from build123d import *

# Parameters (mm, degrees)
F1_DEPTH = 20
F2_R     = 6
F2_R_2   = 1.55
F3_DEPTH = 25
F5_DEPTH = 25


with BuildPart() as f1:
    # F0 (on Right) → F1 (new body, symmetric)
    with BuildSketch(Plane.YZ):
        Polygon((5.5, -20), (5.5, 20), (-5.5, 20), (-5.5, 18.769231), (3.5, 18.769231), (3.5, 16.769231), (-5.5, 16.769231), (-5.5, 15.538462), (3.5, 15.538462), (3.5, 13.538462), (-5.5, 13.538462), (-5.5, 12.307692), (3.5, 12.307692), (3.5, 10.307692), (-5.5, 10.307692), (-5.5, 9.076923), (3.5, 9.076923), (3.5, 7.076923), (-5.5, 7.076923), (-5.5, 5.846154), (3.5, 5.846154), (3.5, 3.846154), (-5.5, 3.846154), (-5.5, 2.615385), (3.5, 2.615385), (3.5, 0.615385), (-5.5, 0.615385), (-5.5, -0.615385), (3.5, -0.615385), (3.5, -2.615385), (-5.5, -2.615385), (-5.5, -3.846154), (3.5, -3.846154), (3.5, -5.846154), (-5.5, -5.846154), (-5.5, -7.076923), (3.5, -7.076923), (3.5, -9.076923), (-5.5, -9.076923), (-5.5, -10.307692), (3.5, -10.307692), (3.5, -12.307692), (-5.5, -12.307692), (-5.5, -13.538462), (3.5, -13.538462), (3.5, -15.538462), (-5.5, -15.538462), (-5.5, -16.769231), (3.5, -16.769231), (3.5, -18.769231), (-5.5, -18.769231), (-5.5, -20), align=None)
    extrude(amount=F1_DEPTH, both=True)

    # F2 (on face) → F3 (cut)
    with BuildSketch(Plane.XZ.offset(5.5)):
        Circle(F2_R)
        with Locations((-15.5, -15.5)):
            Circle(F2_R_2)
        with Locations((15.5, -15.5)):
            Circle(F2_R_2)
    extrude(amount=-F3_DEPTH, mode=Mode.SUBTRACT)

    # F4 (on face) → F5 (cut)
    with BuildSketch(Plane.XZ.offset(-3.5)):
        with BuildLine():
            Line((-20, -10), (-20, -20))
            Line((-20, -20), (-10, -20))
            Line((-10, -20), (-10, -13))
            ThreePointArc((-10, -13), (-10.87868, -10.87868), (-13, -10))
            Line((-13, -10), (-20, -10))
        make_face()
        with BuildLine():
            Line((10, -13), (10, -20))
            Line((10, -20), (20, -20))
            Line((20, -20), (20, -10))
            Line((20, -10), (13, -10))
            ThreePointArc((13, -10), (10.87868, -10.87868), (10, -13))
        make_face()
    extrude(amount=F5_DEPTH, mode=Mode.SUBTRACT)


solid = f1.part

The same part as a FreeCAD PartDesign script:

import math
import FreeCAD as App
import Part
import Sketcher
Q = App.Units.Quantity

doc = App.newDocument("Part")
body = doc.addObject("PartDesign::Body", "Body")

# Sketch on YZ plane
sketch1 = body.newObject("Sketcher::SketchObject", "Sketch")
sketch1.AttachmentSupport = (doc.getObject("YZ_Plane"), [""])
sketch1.MapMode = "FlatFace"
sketch1.addGeometry([
    Part.LineSegment(App.Vector(5.5, -20, 0), App.Vector(5.5, 20, 0)),  # 0
    Part.LineSegment(App.Vector(5.5, 20, 0), App.Vector(-5.5, 20, 0)),  # 1
    Part.LineSegment(App.Vector(-5.5, 20, 0), App.Vector(-5.5, 18.8, 0)),  # 2
    Part.LineSegment(App.Vector(-5.5, 18.8, 0), App.Vector(3.5, 18.8, 0)),  # 3
    Part.LineSegment(App.Vector(3.5, 18.8, 0), App.Vector(3.5, 16.8, 0)),  # 4
    Part.LineSegment(App.Vector(3.5, 16.8, 0), App.Vector(-5.5, 16.8, 0)),  # 5
    Part.LineSegment(App.Vector(-5.5, 16.8, 0), App.Vector(-5.5, 15.5, 0)),  # 6
    Part.LineSegment(App.Vector(-5.5, 15.5, 0), App.Vector(3.5, 15.5, 0)),  # 7
    Part.LineSegment(App.Vector(3.5, 15.5, 0), App.Vector(3.5, 13.5, 0)),  # 8
    Part.LineSegment(App.Vector(3.5, 13.5, 0), App.Vector(-5.5, 13.5, 0)),  # 9
    Part.LineSegment(App.Vector(-5.5, 13.5, 0), App.Vector(-5.5, 12.3, 0)),  # 10
    Part.LineSegment(App.Vector(-5.5, 12.3, 0), App.Vector(3.5, 12.3, 0)),  # 11
    Part.LineSegment(App.Vector(3.5, 12.3, 0), App.Vector(3.5, 10.3, 0)),  # 12
    Part.LineSegment(App.Vector(3.5, 10.3, 0), App.Vector(-5.5, 10.3, 0)),  # 13
    Part.LineSegment(App.Vector(-5.5, 10.3, 0), App.Vector(-5.5, 9.1, 0)),  # 14
    Part.LineSegment(App.Vector(-5.5, 9.1, 0), App.Vector(3.5, 9.1, 0)),  # 15
    Part.LineSegment(App.Vector(3.5, 9.1, 0), App.Vector(3.5, 7.1, 0)),  # 16
    Part.LineSegment(App.Vector(3.5, 7.1, 0), App.Vector(-5.5, 7.1, 0)),  # 17
    Part.LineSegment(App.Vector(-5.5, 7.1, 0), App.Vector(-5.5, 5.8, 0)),  # 18
    Part.LineSegment(App.Vector(-5.5, 5.8, 0), App.Vector(3.5, 5.8, 0)),  # 19
    Part.LineSegment(App.Vector(3.5, 5.8, 0), App.Vector(3.5, 3.8, 0)),  # 20
    Part.LineSegment(App.Vector(3.5, 3.8, 0), App.Vector(-5.5, 3.8, 0)),  # 21
    Part.LineSegment(App.Vector(-5.5, 3.8, 0), App.Vector(-5.5, 2.6, 0)),  # 22
    Part.LineSegment(App.Vector(-5.5, 2.6, 0), App.Vector(3.5, 2.6, 0)),  # 23
    Part.LineSegment(App.Vector(3.5, 2.6, 0), App.Vector(3.5, 0.6, 0)),  # 24
    Part.LineSegment(App.Vector(3.5, 0.6, 0), App.Vector(-5.5, 0.6, 0)),  # 25
    Part.LineSegment(App.Vector(-5.5, 0.6, 0), App.Vector(-5.5, -0.6, 0)),  # 26
    Part.LineSegment(App.Vector(-5.5, -0.6, 0), App.Vector(3.5, -0.6, 0)),  # 27
    Part.LineSegment(App.Vector(3.5, -0.6, 0), App.Vector(3.5, -2.6, 0)),  # 28
    Part.LineSegment(App.Vector(3.5, -2.6, 0), App.Vector(-5.5, -2.6, 0)),  # 29
    Part.LineSegment(App.Vector(-5.5, -2.6, 0), App.Vector(-5.5, -3.8, 0)),  # 30
    Part.LineSegment(App.Vector(-5.5, -3.8, 0), App.Vector(3.5, -3.8, 0)),  # 31
    Part.LineSegment(App.Vector(3.5, -3.8, 0), App.Vector(3.5, -5.8, 0)),  # 32
    Part.LineSegment(App.Vector(3.5, -5.8, 0), App.Vector(-5.5, -5.8, 0)),  # 33
    Part.LineSegment(App.Vector(-5.5, -5.8, 0), App.Vector(-5.5, -7.1, 0)),  # 34
    Part.LineSegment(App.Vector(-5.5, -7.1, 0), App.Vector(3.5, -7.1, 0)),  # 35
    Part.LineSegment(App.Vector(3.5, -7.1, 0), App.Vector(3.5, -9.1, 0)),  # 36
    Part.LineSegment(App.Vector(3.5, -9.1, 0), App.Vector(-5.5, -9.1, 0)),  # 37
    Part.LineSegment(App.Vector(-5.5, -9.1, 0), App.Vector(-5.5, -10.3, 0)),  # 38
    Part.LineSegment(App.Vector(-5.5, -10.3, 0), App.Vector(3.5, -10.3, 0)),  # 39
    Part.LineSegment(App.Vector(3.5, -10.3, 0), App.Vector(3.5, -12.3, 0)),  # 40
    Part.LineSegment(App.Vector(3.5, -12.3, 0), App.Vector(-5.5, -12.3, 0)),  # 41
    Part.LineSegment(App.Vector(-5.5, -12.3, 0), App.Vector(-5.5, -13.5, 0)),  # 42
    Part.LineSegment(App.Vector(-5.5, -13.5, 0), App.Vector(3.5, -13.5, 0)),  # 43
    Part.LineSegment(App.Vector(3.5, -13.5, 0), App.Vector(3.5, -15.5, 0)),  # 44
    Part.LineSegment(App.Vector(3.5, -15.5, 0), App.Vector(-5.5, -15.5, 0)),  # 45
    Part.LineSegment(App.Vector(-5.5, -15.5, 0), App.Vector(-5.5, -16.8, 0)),  # 46
    Part.LineSegment(App.Vector(-5.5, -16.8, 0), App.Vector(3.5, -16.8, 0)),  # 47
    Part.LineSegment(App.Vector(3.5, -16.8, 0), App.Vector(3.5, -18.8, 0)),  # 48
    Part.LineSegment(App.Vector(3.5, -18.8, 0), App.Vector(-5.5, -18.8, 0)),  # 49
    Part.LineSegment(App.Vector(-5.5, -18.8, 0), App.Vector(-5.5, -20, 0)),  # 50
    Part.LineSegment(App.Vector(-5.5, -20, 0), App.Vector(5.5, -20, 0)),  # 51
], False)
sketch1.addConstraint([
    Sketcher.Constraint("Coincident", 0, 2, 1, 1),
    Sketcher.Constraint("Coincident", 1, 2, 2, 1),
    Sketcher.Constraint("Coincident", 2, 2, 3, 1),
    Sketcher.Constraint("Coincident", 3, 2, 4, 1),
    Sketcher.Constraint("Coincident", 4, 2, 5, 1),
    Sketcher.Constraint("Coincident", 5, 2, 6, 1),
    Sketcher.Constraint("Coincident", 6, 2, 7, 1),
    Sketcher.Constraint("Coincident", 7, 2, 8, 1),
    Sketcher.Constraint("Coincident", 8, 2, 9, 1),
    Sketcher.Constraint("Coincident", 9, 2, 10, 1),
    Sketcher.Constraint("Coincident", 10, 2, 11, 1),
    Sketcher.Constraint("Coincident", 11, 2, 12, 1),
    Sketcher.Constraint("Coincident", 12, 2, 13, 1),
    Sketcher.Constraint("Coincident", 13, 2, 14, 1),
    Sketcher.Constraint("Coincident", 14, 2, 15, 1),
    Sketcher.Constraint("Coincident", 15, 2, 16, 1),
    Sketcher.Constraint("Coincident", 16, 2, 17, 1),
    Sketcher.Constraint("Coincident", 17, 2, 18, 1),
    Sketcher.Constraint("Coincident", 18, 2, 19, 1),
    Sketcher.Constraint("Coincident", 19, 2, 20, 1),
    Sketcher.Constraint("Coincident", 20, 2, 21, 1),
    Sketcher.Constraint("Coincident", 21, 2, 22, 1),
    Sketcher.Constraint("Coincident", 22, 2, 23, 1),
    Sketcher.Constraint("Coincident", 23, 2, 24, 1),
    Sketcher.Constraint("Coincident", 24, 2, 25, 1),
    Sketcher.Constraint("Coincident", 25, 2, 26, 1),
    Sketcher.Constraint("Coincident", 26, 2, 27, 1),
    Sketcher.Constraint("Coincident", 27, 2, 28, 1),
    Sketcher.Constraint("Coincident", 28, 2, 29, 1),
    Sketcher.Constraint("Coincident", 29, 2, 30, 1),
    Sketcher.Constraint("Coincident", 30, 2, 31, 1),
    Sketcher.Constraint("Coincident", 31, 2, 32, 1),
    Sketcher.Constraint("Coincident", 32, 2, 33, 1),
    Sketcher.Constraint("Coincident", 33, 2, 34, 1),
    Sketcher.Constraint("Coincident", 34, 2, 35, 1),
    Sketcher.Constraint("Coincident", 35, 2, 36, 1),
    Sketcher.Constraint("Coincident", 36, 2, 37, 1),
    Sketcher.Constraint("Coincident", 37, 2, 38, 1),
    Sketcher.Constraint("Coincident", 38, 2, 39, 1),
    Sketcher.Constraint("Coincident", 39, 2, 40, 1),
    Sketcher.Constraint("Coincident", 40, 2, 41, 1),
    Sketcher.Constraint("Coincident", 41, 2, 42, 1),
    Sketcher.Constraint("Coincident", 42, 2, 43, 1),
    Sketcher.Constraint("Coincident", 43, 2, 44, 1),
    Sketcher.Constraint("Coincident", 44, 2, 45, 1),
    Sketcher.Constraint("Coincident", 45, 2, 46, 1),
    Sketcher.Constraint("Coincident", 46, 2, 47, 1),
    Sketcher.Constraint("Coincident", 47, 2, 48, 1),
    Sketcher.Constraint("Coincident", 48, 2, 49, 1),
    Sketcher.Constraint("Coincident", 49, 2, 50, 1),
    Sketcher.Constraint("Coincident", 50, 2, 51, 1),
    Sketcher.Constraint("Coincident", 51, 2, 0, 1),
    Sketcher.Constraint("Vertical", 0),
    Sketcher.Constraint("Horizontal", 1),
    Sketcher.Constraint("Vertical", 2),
    Sketcher.Constraint("Horizontal", 3),
    Sketcher.Constraint("Vertical", 4),
    Sketcher.Constraint("Horizontal", 5),
    Sketcher.Constraint("Vertical", 6),
    Sketcher.Constraint("Horizontal", 7),
    Sketcher.Constraint("Vertical", 8),
    Sketcher.Constraint("Horizontal", 9),
    Sketcher.Constraint("Vertical", 10),
    Sketcher.Constraint("Horizontal", 11),
    Sketcher.Constraint("Vertical", 12),
    Sketcher.Constraint("Horizontal", 13),
    Sketcher.Constraint("Vertical", 14),
    Sketcher.Constraint("Horizontal", 15),
    Sketcher.Constraint("Vertical", 16),
    Sketcher.Constraint("Horizontal", 17),
    Sketcher.Constraint("Vertical", 18),
    Sketcher.Constraint("Horizontal", 19),
    Sketcher.Constraint("Vertical", 20),
    Sketcher.Constraint("Horizontal", 21),
    Sketcher.Constraint("Vertical", 22),
    Sketcher.Constraint("Horizontal", 23),
    Sketcher.Constraint("Vertical", 24),
    Sketcher.Constraint("Horizontal", 25),
    Sketcher.Constraint("Vertical", 26),
    Sketcher.Constraint("Horizontal", 27),
    Sketcher.Constraint("Vertical", 28),
    Sketcher.Constraint("Horizontal", 29),
    Sketcher.Constraint("Vertical", 30),
    Sketcher.Constraint("Horizontal", 31),
    Sketcher.Constraint("Vertical", 32),
    Sketcher.Constraint("Horizontal", 33),
    Sketcher.Constraint("Vertical", 34),
    Sketcher.Constraint("Horizontal", 35),
    Sketcher.Constraint("Vertical", 36),
    Sketcher.Constraint("Horizontal", 37),
    Sketcher.Constraint("Vertical", 38),
    Sketcher.Constraint("Horizontal", 39),
    Sketcher.Constraint("Vertical", 40),
    Sketcher.Constraint("Horizontal", 41),
    Sketcher.Constraint("Vertical", 42),
    Sketcher.Constraint("Horizontal", 43),
    Sketcher.Constraint("Vertical", 44),
    Sketcher.Constraint("Horizontal", 45),
    Sketcher.Constraint("Vertical", 46),
    Sketcher.Constraint("Horizontal", 47),
    Sketcher.Constraint("Vertical", 48),
    Sketcher.Constraint("Horizontal", 49),
    Sketcher.Constraint("Vertical", 50),
    Sketcher.Constraint("Horizontal", 51),
    Sketcher.Constraint("Symmetric", 0, 2, 50, 2, -1, 1),
    Sketcher.Constraint("Symmetric", 24, 2, 27, 2, -1),
    Sketcher.Constraint("Symmetric", 22, 2, 29, 2, -1),
    Sketcher.Constraint("Symmetric", 20, 2, 31, 2, -1),
    Sketcher.Constraint("Symmetric", 18, 2, 33, 2, -1),
    Sketcher.Constraint("Symmetric", 16, 2, 35, 2, -1),
    Sketcher.Constraint("Symmetric", 14, 2, 37, 2, -1),
    Sketcher.Constraint("Symmetric", 12, 2, 39, 2, -1),
    Sketcher.Constraint("Symmetric", 10, 2, 41, 2, -1),
    Sketcher.Constraint("Symmetric", 8, 2, 43, 2, -1),
    Sketcher.Constraint("Symmetric", 6, 2, 45, 2, -1),
    Sketcher.Constraint("Symmetric", 4, 2, 47, 2, -1),
    Sketcher.Constraint("Symmetric", 2, 2, 49, 2, -1),
    Sketcher.Constraint("Vertical", 2, 2, 5, 2),
    Sketcher.Constraint("Vertical", 4, 2, 7, 2),
    Sketcher.Constraint("Vertical", 6, 2, 9, 2),
    Sketcher.Constraint("Vertical", 8, 2, 11, 2),
    Sketcher.Constraint("Vertical", 10, 2, 13, 2),
    Sketcher.Constraint("Vertical", 12, 2, 15, 2),
    Sketcher.Constraint("Vertical", 14, 2, 17, 2),
    Sketcher.Constraint("Vertical", 16, 2, 19, 2),
    Sketcher.Constraint("Vertical", 18, 2, 21, 2),
    Sketcher.Constraint("Vertical", 20, 2, 23, 2),
    Sketcher.Constraint("Vertical", 22, 2, 25, 2),
    Sketcher.Constraint("Equal", 2, 6),
    Sketcher.Constraint("Equal", 4, 8),
    Sketcher.Constraint("Equal", 6, 10),
    Sketcher.Constraint("Equal", 8, 12),
    Sketcher.Constraint("Equal", 10, 14),
    Sketcher.Constraint("Equal", 12, 16),
    Sketcher.Constraint("Equal", 14, 18),
    Sketcher.Constraint("Equal", 16, 20),
    Sketcher.Constraint("Equal", 18, 22),
    Sketcher.Constraint("Equal", 20, 24),
    Sketcher.Constraint("Equal", 22, 26),
    Sketcher.Constraint("DistanceX", 1, 2, 1, 1, Q("11 mm")),
    Sketcher.Constraint("DistanceX", 3, 1, 3, 2, Q("9 mm")),
    Sketcher.Constraint("DistanceY", 0, 1, 0, 2, Q("40 mm")),
    Sketcher.Constraint("DistanceY", 4, 2, 4, 1, Q("2 mm")),
])
pad1 = body.newObject("PartDesign::Pad", "Pad")
pad1.Profile = sketch1
pad1.Length = 40
pad1.Midplane = True

# Sketch on XZ plane
sketch2 = body.newObject("Sketcher::SketchObject", "Sketch001")
sketch2.AttachmentSupport = (doc.getObject("XZ_Plane"), [""])
sketch2.MapMode = "FlatFace"
sketch2.AttachmentOffset = App.Placement(App.Vector(0, 0, 5.5), App.Rotation())
sketch2.addGeometry([
    Part.Circle(App.Vector(0, 0, 0), App.Vector(0, 0, 1), 6),
    Part.Circle(App.Vector(-15.5, -15.5, 0), App.Vector(0, 0, 1), 1.6),
    Part.Circle(App.Vector(15.5, -15.5, 0), App.Vector(0, 0, 1), 1.6),
], False)
sketch2.addConstraint([
    Sketcher.Constraint("Coincident", 0, 3, -1, 1),
    Sketcher.Constraint("Equal", 1, 2),
    Sketcher.Constraint("Symmetric", 1, 3, 2, 3, -2),
    Sketcher.Constraint("Diameter", 0, Q("12 mm")),
    Sketcher.Constraint("Diameter", 1, Q("3.1 mm")),
    Sketcher.Constraint("DistanceX", 1, 3, 2, 3, Q("31 mm")),
    Sketcher.Constraint("DistanceY", 1, 3, -1, 1, Q("15.5 mm")),
])
pocket1 = body.newObject("PartDesign::Pocket", "Pocket")
pocket1.Profile = sketch2
pocket1.Length = 25

# Sketch on XZ plane
sketch3 = body.newObject("Sketcher::SketchObject", "Sketch002")
sketch3.AttachmentSupport = (doc.getObject("XZ_Plane"), [""])
sketch3.MapMode = "FlatFace"
sketch3.AttachmentOffset = App.Placement(App.Vector(0, 0, -3.5), App.Rotation())
sketch3.addGeometry([
    Part.LineSegment(App.Vector(-20, -10, 0), App.Vector(-20, -20, 0)),  # 0
    Part.LineSegment(App.Vector(-20, -20, 0), App.Vector(-10, -20, 0)),  # 1
    Part.LineSegment(App.Vector(-10, -20, 0), App.Vector(-10, -13, 0)),  # 2
    Part.ArcOfCircle(Part.Circle(App.Vector(-13, -13, 0), App.Vector(0, 0, 1), 3), math.radians(0), math.radians(90)),  # 3
    Part.LineSegment(App.Vector(-13, -10, 0), App.Vector(-20, -10, 0)),  # 4
    Part.LineSegment(App.Vector(10, -13, 0), App.Vector(10, -20, 0)),  # 5
    Part.LineSegment(App.Vector(10, -20, 0), App.Vector(20, -20, 0)),  # 6
    Part.LineSegment(App.Vector(20, -20, 0), App.Vector(20, -10, 0)),  # 7
    Part.LineSegment(App.Vector(20, -10, 0), App.Vector(13, -10, 0)),  # 8
    Part.ArcOfCircle(Part.Circle(App.Vector(13, -13, 0), App.Vector(0, 0, 1), 3), math.radians(90), math.radians(180)),  # 9
], False)
sketch3.addConstraint([
    Sketcher.Constraint("Coincident", 0, 2, 1, 1),
    Sketcher.Constraint("Coincident", 1, 2, 2, 1),
    Sketcher.Constraint("Tangent", 2, 2, 3, 1),
    Sketcher.Constraint("Tangent", 3, 2, 4, 1),
    Sketcher.Constraint("Coincident", 4, 2, 0, 1),
    Sketcher.Constraint("Coincident", 5, 2, 6, 1),
    Sketcher.Constraint("Coincident", 6, 2, 7, 1),
    Sketcher.Constraint("Coincident", 7, 2, 8, 1),
    Sketcher.Constraint("Tangent", 8, 2, 9, 1),
    Sketcher.Constraint("Tangent", 9, 2, 5, 1),
    Sketcher.Constraint("Vertical", 0),
    Sketcher.Constraint("Horizontal", 1),
    Sketcher.Constraint("Vertical", 2),
    Sketcher.Constraint("Horizontal", 4),
    Sketcher.Constraint("Vertical", 5),
    Sketcher.Constraint("Horizontal", 6),
    Sketcher.Constraint("Vertical", 7),
    Sketcher.Constraint("Horizontal", 8),
    Sketcher.Constraint("Equal", 3, 9),
    Sketcher.Constraint("Symmetric", 3, 3, 9, 3, -2),
    Sketcher.Constraint("Symmetric", 0, 2, 6, 2, -2),
    Sketcher.Constraint("Equal", 6, 0),
    Sketcher.Constraint("Radius", 3, Q("3.000001 mm")),
    Sketcher.Constraint("DistanceX", 1, 1, 1, 2, Q("10 mm")),
    Sketcher.Constraint("DistanceX", 3, 3, -1, 1, Q("13.000001 mm")),
    Sketcher.Constraint("DistanceY", 3, 3, -1, 1, Q("13.000001 mm")),
])
pocket2 = body.newObject("PartDesign::Pocket", "Pocket001")
pocket2.Profile = sketch3
pocket2.Length = 25
pocket2.Reversed = True

doc.recompute()
